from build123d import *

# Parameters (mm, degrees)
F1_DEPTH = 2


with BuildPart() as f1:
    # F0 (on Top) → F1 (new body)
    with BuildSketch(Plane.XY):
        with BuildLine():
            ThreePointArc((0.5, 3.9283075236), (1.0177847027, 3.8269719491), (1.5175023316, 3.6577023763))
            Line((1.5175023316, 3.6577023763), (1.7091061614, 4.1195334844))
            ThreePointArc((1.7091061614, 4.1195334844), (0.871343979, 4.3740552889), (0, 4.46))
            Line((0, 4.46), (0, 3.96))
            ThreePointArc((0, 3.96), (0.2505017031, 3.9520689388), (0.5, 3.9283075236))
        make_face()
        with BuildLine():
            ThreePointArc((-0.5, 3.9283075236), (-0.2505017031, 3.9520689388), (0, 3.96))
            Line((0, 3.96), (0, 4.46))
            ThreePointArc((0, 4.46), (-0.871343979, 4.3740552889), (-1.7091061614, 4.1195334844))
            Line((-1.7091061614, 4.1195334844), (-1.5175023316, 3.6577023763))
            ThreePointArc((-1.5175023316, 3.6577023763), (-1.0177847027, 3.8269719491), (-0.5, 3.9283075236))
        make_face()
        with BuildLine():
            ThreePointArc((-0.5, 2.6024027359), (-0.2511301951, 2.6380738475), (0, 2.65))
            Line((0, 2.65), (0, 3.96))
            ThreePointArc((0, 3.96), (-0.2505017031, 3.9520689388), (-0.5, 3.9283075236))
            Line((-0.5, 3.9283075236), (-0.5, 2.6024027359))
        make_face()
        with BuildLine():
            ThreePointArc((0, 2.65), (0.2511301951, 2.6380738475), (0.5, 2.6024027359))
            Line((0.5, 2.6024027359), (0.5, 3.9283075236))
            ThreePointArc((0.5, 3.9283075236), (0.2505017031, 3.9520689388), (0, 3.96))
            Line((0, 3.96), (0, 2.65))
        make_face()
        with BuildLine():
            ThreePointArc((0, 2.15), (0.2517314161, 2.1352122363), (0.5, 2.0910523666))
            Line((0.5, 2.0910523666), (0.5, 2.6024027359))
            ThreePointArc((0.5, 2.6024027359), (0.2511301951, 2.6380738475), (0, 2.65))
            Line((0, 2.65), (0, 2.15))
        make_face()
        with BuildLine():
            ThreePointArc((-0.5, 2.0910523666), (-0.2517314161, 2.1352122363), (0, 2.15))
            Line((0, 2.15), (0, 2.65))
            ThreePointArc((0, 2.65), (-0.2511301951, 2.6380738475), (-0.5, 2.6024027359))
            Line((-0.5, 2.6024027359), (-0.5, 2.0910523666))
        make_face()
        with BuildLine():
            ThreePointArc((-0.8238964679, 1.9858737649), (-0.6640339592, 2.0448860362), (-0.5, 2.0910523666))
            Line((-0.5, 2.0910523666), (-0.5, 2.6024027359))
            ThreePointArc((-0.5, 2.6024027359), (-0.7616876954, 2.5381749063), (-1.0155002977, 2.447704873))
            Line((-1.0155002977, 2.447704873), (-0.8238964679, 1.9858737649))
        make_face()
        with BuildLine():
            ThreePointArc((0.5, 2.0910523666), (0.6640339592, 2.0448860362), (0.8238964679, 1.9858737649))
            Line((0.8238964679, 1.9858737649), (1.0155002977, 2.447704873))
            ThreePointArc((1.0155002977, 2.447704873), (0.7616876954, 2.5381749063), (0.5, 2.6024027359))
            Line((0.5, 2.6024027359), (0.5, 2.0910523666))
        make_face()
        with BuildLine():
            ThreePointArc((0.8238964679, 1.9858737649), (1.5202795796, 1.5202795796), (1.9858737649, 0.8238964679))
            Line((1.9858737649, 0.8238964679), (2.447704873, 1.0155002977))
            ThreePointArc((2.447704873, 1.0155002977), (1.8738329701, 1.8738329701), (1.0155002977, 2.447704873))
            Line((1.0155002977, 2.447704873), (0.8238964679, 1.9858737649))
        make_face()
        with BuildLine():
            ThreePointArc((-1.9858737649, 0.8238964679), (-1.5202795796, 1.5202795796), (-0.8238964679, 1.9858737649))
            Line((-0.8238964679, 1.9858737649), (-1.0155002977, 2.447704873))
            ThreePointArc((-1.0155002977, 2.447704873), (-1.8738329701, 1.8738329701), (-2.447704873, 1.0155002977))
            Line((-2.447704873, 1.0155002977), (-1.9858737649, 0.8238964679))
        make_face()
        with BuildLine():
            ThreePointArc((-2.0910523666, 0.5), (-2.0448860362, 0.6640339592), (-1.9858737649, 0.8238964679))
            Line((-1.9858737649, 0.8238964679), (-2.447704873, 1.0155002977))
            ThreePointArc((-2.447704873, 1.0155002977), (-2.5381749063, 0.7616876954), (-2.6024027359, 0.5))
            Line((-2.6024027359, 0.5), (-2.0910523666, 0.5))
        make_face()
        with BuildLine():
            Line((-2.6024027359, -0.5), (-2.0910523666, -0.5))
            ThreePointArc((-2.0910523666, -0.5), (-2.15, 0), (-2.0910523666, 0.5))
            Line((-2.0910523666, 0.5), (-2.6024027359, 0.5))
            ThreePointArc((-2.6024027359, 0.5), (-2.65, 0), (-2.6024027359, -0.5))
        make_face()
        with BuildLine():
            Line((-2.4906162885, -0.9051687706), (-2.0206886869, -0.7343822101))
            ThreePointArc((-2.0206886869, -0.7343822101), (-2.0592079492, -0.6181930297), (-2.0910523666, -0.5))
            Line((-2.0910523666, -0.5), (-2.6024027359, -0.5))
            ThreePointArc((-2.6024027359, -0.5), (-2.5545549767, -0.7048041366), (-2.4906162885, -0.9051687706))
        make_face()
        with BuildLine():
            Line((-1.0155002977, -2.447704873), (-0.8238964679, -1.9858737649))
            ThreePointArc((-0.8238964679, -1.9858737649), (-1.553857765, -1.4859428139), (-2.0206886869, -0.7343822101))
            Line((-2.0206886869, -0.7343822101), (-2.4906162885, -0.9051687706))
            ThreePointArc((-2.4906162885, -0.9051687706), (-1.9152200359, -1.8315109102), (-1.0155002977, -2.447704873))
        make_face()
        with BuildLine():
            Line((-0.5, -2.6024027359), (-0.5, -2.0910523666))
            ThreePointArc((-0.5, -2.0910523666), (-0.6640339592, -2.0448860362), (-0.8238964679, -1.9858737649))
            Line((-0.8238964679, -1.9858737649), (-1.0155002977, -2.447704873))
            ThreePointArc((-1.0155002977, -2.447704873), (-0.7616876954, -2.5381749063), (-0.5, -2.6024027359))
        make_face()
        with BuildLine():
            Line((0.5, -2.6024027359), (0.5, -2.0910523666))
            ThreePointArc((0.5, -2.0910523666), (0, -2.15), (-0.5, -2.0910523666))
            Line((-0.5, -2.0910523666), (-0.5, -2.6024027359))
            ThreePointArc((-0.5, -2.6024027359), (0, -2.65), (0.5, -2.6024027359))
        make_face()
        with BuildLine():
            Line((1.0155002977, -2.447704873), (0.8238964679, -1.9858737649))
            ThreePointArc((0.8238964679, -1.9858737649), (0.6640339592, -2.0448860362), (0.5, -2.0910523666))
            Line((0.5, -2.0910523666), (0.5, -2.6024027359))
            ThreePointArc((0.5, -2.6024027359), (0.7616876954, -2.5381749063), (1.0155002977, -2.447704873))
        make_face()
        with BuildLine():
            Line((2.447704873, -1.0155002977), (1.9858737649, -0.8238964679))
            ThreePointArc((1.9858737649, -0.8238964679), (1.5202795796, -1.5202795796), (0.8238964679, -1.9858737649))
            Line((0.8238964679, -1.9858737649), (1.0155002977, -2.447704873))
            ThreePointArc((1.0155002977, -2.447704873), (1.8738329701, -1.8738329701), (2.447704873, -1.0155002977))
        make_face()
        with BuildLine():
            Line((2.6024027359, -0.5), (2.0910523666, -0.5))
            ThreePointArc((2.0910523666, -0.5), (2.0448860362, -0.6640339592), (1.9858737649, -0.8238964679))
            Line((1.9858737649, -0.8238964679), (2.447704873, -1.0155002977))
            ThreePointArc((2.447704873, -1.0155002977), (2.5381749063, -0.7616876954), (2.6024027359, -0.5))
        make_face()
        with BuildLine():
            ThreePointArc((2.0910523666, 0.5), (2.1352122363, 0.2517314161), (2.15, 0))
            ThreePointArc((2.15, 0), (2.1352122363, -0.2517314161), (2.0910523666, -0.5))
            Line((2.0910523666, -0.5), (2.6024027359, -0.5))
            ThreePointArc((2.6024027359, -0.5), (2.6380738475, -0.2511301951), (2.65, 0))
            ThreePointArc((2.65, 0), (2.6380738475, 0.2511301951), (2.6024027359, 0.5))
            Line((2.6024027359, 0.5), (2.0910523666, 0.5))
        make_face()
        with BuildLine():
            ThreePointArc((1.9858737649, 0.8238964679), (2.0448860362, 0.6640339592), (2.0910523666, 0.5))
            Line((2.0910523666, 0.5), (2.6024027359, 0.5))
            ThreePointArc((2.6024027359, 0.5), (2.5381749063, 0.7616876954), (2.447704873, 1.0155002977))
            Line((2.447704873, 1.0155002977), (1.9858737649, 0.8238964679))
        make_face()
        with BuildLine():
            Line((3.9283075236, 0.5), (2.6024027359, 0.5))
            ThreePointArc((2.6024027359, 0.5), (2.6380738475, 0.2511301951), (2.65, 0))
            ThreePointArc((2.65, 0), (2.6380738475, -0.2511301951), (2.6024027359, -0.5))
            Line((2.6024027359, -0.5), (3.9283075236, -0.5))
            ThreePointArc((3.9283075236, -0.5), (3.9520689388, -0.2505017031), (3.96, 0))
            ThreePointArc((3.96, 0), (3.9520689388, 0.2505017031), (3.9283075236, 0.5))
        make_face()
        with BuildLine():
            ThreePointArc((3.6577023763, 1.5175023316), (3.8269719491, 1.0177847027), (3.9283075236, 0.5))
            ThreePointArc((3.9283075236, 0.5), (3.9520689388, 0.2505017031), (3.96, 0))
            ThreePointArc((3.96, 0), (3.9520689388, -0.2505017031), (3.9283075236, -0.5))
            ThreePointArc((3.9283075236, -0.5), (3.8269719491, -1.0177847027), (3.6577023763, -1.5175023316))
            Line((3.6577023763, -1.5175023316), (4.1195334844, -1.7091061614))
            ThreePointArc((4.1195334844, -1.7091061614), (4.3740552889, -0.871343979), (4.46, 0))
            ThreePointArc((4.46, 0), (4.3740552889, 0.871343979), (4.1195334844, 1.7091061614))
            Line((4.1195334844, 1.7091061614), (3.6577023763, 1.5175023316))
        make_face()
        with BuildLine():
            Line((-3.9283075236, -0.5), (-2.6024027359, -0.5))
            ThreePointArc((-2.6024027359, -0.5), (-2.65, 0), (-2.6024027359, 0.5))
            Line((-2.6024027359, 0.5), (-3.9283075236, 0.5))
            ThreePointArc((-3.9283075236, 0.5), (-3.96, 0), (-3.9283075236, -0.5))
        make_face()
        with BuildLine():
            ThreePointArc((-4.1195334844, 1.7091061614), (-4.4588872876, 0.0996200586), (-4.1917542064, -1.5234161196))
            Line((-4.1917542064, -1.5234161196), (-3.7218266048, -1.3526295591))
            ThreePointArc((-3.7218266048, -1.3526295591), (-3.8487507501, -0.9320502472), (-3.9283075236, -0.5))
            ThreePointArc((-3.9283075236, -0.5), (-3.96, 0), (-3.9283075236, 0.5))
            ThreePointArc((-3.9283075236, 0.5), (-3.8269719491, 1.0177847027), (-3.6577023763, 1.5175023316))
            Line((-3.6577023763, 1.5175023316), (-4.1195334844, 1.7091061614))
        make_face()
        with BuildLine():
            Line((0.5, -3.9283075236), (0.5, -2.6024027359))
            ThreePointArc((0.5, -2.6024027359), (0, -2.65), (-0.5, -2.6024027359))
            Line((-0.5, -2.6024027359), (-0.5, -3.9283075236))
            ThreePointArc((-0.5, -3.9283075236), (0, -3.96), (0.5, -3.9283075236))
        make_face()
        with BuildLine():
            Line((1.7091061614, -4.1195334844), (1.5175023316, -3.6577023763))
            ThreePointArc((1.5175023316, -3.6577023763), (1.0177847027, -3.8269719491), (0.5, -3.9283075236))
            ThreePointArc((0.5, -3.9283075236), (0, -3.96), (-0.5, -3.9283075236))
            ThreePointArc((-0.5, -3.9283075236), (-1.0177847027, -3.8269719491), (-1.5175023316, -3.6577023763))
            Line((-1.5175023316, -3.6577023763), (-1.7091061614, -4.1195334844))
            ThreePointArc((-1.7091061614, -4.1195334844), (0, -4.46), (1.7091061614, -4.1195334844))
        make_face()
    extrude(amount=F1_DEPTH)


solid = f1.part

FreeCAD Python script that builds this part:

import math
import FreeCAD as App
import Part
import Sketcher

V = App.Vector
Q = App.Units.Quantity

doc = App.newDocument("Part")
params = doc.addObject("Spreadsheet::Sheet", "Params")
for row, (alias, value) in enumerate([
    ("sketch1_radius", "3.96 mm"),
    ("sketch1_radius2", "4.46 mm"),
    ("sketch1_radius3", "2.65 mm"),
    ("sketch1_radius4", "2.15 mm"),
    ("pad1_length", "2 mm"),
], start=1):
    params.set(f"A{row}", alias)
    params.set(f"B{row}", "=" + value)
    params.setAlias(f"B{row}", alias)

body = doc.addObject("PartDesign::Body", "Body")

# Sketch on XY plane
sketch1 = body.newObject("Sketcher::SketchObject", "Sketch")
sketch1.AttachmentSupport = (doc.getObject("XY_Plane"), [""])
sketch1.MapMode = "FlatFace"
sketch1.addGeometry([
    Part.ArcOfCircle(Part.Circle(V(0, 0, 0), V(0, 0, 1), 3.96), math.radians(67.47), math.radians(82.75)),  # 0
    Part.LineSegment(V(1.52, 3.66, 0), V(1.71, 4.12, 0)),  # 1
    Part.ArcOfCircle(Part.Circle(V(0, 0, 0), V(0, 0, 1), 4.46), math.radians(67), math.radians(90)),  # 2
    Part.ArcOfCircle(Part.Circle(V(0, 0, 0), V(0, 0, 1), 4.46), math.radians(90), math.radians(113)),  # 3
    Part.LineSegment(V(-1.71, 4.12, 0), V(-1.52, 3.66, 0)),  # 4
    Part.ArcOfCircle(Part.Circle(V(0, 0, 0), V(0, 0, 1), 3.96), math.radians(97.25), math.radians(112.53)),  # 5
    Part.LineSegment(V(-0.5, 3.93, 0), V(-0.5, 2.6, 0)),  # 6
    Part.ArcOfCircle(Part.Circle(V(0, 0, 0), V(0, 0, 1), 2.65), math.radians(100.88), math.radians(112.53)),  # 7
    Part.ArcOfCircle(Part.Circle(V(0, 0, 0), V(0, 0, 1), 2.65), math.radians(113), math.radians(157)),  # 8
    Part.ArcOfCircle(Part.Circle(V(0, 0, 0), V(0, 0, 1), 2.65), math.radians(157.47), math.radians(169.12)),  # 9
    Part.LineSegment(V(-2.6, 0.5, 0), V(-3.93, 0.5, 0)),  # 10
    Part.ArcOfCircle(Part.Circle(V(0, 0, 0), V(0, 0, 1), 3.96), math.radians(157.47), math.radians(172.75)),  # 11
    Part.LineSegment(V(-3.66, 1.52, 0), V(-4.12, 1.71, 0)),  # 12
    Part.ArcOfCircle(Part.Circle(V(0, 0, 0), V(0, 0, 1), 4.46), math.radians(157), math.radians(200)),  # 13
    Part.LineSegment(V(-4.19, -1.52, 0), V(-3.72, -1.35, 0)),  # 14
    Part.ArcOfCircle(Part.Circle(V(0, 0, 0), V(0, 0, 1), 3.96), math.radians(-172.75), math.radians(-160.03)),  # 15
    Part.LineSegment(V(-3.93, -0.5, 0), V(-2.6, -0.5, 0)),  # 16
    Part.ArcOfCircle(Part.Circle(V(0, 0, 0), V(0, 0, 1), 2.65), math.radians(-169.12), math.radians(-160.03)),  # 17
    Part.ArcOfCircle(Part.Circle(V(0, 0, 0), V(0, 0, 1), 2.65), math.radians(-160), math.radians(-113)),  # 18
    Part.ArcOfCircle(Part.Circle(V(0, 0, 0), V(0, 0, 1), 2.65), math.radians(-112.53), math.radians(-100.88)),  # 19
    Part.LineSegment(V(-0.5, -2.6, 0), V(-0.5, -3.93, 0)),  # 20
    Part.ArcOfCircle(Part.Circle(V(0, 0, 0), V(0, 0, 1), 3.96), math.radians(-112.53), math.radians(-97.25)),  # 21
    Part.LineSegment(V(-1.52, -3.66, 0), V(-1.71, -4.12, 0)),  # 22
    Part.ArcOfCircle(Part.Circle(V(0, 0, 0), V(0, 0, 1), 4.46), math.radians(-113), math.radians(-67)),  # 23
    Part.LineSegment(V(1.71, -4.12, 0), V(1.52, -3.66, 0)),  # 24
    Part.ArcOfCircle(Part.Circle(V(0, 0, 0), V(0, 0, 1), 3.96), math.radians(-82.75), math.radians(-67.47)),  # 25
    Part.LineSegment(V(0.5, -3.93, 0), V(0.5, -2.6, 0)),  # 26
    Part.ArcOfCircle(Part.Circle(V(0, 0, 0), V(0, 0, 1), 2.65), math.radians(-79.12), math.radians(-67.47)),  # 27
    Part.ArcOfCircle(Part.Circle(V(0, 0, 0), V(0, 0, 1), 2.65), math.radians(-67), math.radians(-23)),  # 28
    Part.ArcOfCircle(Part.Circle(V(0, 0, 0), V(0, 0, 1), 2.65), math.radians(-22.53), math.radians(-10.88)),  # 29
    Part.LineSegment(V(2.6, -0.5, 0), V(3.93, -0.5, 0)),  # 30
    Part.ArcOfCircle(Part.Circle(V(0, 0, 0), V(0, 0, 1), 3.96), math.radians(-22.53), math.radians(-7.25)),  # 31
    Part.LineSegment(V(3.66, -1.52, 0), V(4.12, -1.71, 0)),  # 32
    Part.ArcOfCircle(Part.Circle(V(0, 0, 0), V(0, 0, 1), 4.46), math.radians(-23), math.radians(0)),  # 33
    Part.ArcOfCircle(Part.Circle(V(0, 0, 0), V(0, 0, 1), 4.46), math.radians(0), math.radians(23)),  # 34
    Part.LineSegment(V(4.12, 1.71, 0), V(3.66, 1.52, 0)),  # 35
    Part.ArcOfCircle(Part.Circle(V(0, 0, 0), V(0, 0, 1), 3.96), math.radians(7.25), math.radians(22.53)),  # 36
    Part.LineSegment(V(3.93, 0.5, 0), V(2.6, 0.5, 0)),  # 37
    Part.ArcOfCircle(Part.Circle(V(0, 0, 0), V(0, 0, 1), 2.65), math.radians(10.88), math.radians(22.53)),  # 38
    Part.ArcOfCircle(Part.Circle(V(0, 0, 0), V(0, 0, 1), 2.65), math.radians(23), math.radians(67)),  # 39
    Part.ArcOfCircle(Part.Circle(V(0, 0, 0), V(0, 0, 1), 2.65), math.radians(67.47), math.radians(79.12)),  # 40
    Part.LineSegment(V(0.5, 2.6, 0), V(0.5, 3.93, 0)),  # 41
    Part.ArcOfCircle(Part.Circle(V(0, 0, 0), V(0, 0, 1), 2.15), math.radians(0), math.radians(13.45)),  # 42
    Part.ArcOfCircle(Part.Circle(V(0, 0, 0), V(0, 0, 1), 2.15), math.radians(-13.45), math.radians(0)),  # 43
    Part.ArcOfCircle(Part.Circle(V(0, 0, 0), V(0, 0, 1), 2.15), math.radians(-22.53), math.radians(-13.45)),  # 44
    Part.ArcOfCircle(Part.Circle(V(0, 0, 0), V(0, 0, 1), 2.15), math.radians(-67), math.radians(-23)),  # 45
    Part.ArcOfCircle(Part.Circle(V(0, 0, 0), V(0, 0, 1), 2.15), math.radians(-76.55), math.radians(-67.47)),  # 46
    Part.ArcOfCircle(Part.Circle(V(0, 0, 0), V(0, 0, 1), 2.15), math.radians(-103), math.radians(-77)),  # 47
    Part.ArcOfCircle(Part.Circle(V(0, 0, 0), V(0, 0, 1), 2.15), math.radians(-112.53), math.radians(-103.45)),  # 48
    Part.ArcOfCircle(Part.Circle(V(0, 0, 0), V(0, 0, 1), 2.15), math.radians(-160), math.radians(-113)),  # 49
    Part.ArcOfCircle(Part.Circle(V(0, 0, 0), V(0, 0, 1), 2.15), math.radians(-166.55), math.radians(-160.03)),  # 50
    Part.ArcOfCircle(Part.Circle(V(0, 0, 0), V(0, 0, 1), 2.15), math.radians(167), math.radians(193)),  # 51
    Part.ArcOfCircle(Part.Circle(V(0, 0, 0), V(0, 0, 1), 2.15), math.radians(157.47), math.radians(166.55)),  # 52
    Part.ArcOfCircle(Part.Circle(V(0, 0, 0), V(0, 0, 1), 2.15), math.radians(113), math.radians(157)),  # 53
    Part.ArcOfCircle(Part.Circle(V(0, 0, 0), V(0, 0, 1), 2.15), math.radians(103.45), math.radians(112.53)),  # 54
    Part.ArcOfCircle(Part.Circle(V(0, 0, 0), V(0, 0, 1), 2.15), math.radians(90), math.radians(103.45)),  # 55
    Part.ArcOfCircle(Part.Circle(V(0, 0, 0), V(0, 0, 1), 2.15), math.radians(76.55), math.radians(90)),  # 56
    Part.ArcOfCircle(Part.Circle(V(0, 0, 0), V(0, 0, 1), 2.15), math.radians(67.47), math.radians(76.55)),  # 57
    Part.ArcOfCircle(Part.Circle(V(0, 0, 0), V(0, 0, 1), 2.15), math.radians(23), math.radians(67)),  # 58
    Part.ArcOfCircle(Part.Circle(V(0, 0, 0), V(0, 0, 1), 2.15), math.radians(13.45), math.radians(22.53)),  # 59
], False)
sketch1.addConstraint([
    Sketcher.Constraint("Coincident", 0, 1, 1, 1),
    Sketcher.Constraint("Coincident", 1, 2, 2, 1),
    Sketcher.Constraint("Tangent", 2, 2, 3, 1),
    Sketcher.Constraint("Coincident", 3, 2, 4, 1),
    Sketcher.Constraint("Coincident", 4, 2, 5, 2),
    Sketcher.Constraint("Coincident", 5, 1, 6, 1),
    Sketcher.Constraint("Coincident", 6, 2, 7, 1),
    Sketcher.Constraint("Tangent", 7, 2, 8, 1),
    Sketcher.Constraint("Tangent", 8, 2, 9, 1),
    Sketcher.Constraint("Coincident", 9, 2, 10, 1),
    Sketcher.Constraint("Coincident", 10, 2, 11, 2),
    Sketcher.Constraint("Coincident", 11, 1, 12, 1),
    Sketcher.Constraint("Coincident", 12, 2, 13, 1),
    Sketcher.Constraint("Coincident", 13, 2, 14, 1),
    Sketcher.Constraint("Coincident", 14, 2, 15, 2),
    Sketcher.Constraint("Coincident", 15, 1, 16, 1),
    Sketcher.Constraint("Coincident", 16, 2, 17, 1),
    Sketcher.Constraint("Tangent", 17, 2, 18, 1),
    Sketcher.Constraint("Tangent", 18, 2, 19, 1),
    Sketcher.Constraint("Coincident", 19, 2, 20, 1),
    Sketcher.Constraint("Coincident", 20, 2, 21, 2),
    Sketcher.Constraint("Coincident", 21, 1, 22, 1),
    Sketcher.Constraint("Coincident", 22, 2, 23, 1),
    Sketcher.Constraint("Coincident", 23, 2, 24, 1),
    Sketcher.Constraint("Coincident", 24, 2, 25, 2),
    Sketcher.Constraint("Coincident", 25, 1, 26, 1),
    Sketcher.Constraint("Coincident", 26, 2, 27, 1),
    Sketcher.Constraint("Tangent", 27, 2, 28, 1),
    Sketcher.Constraint("Tangent", 28, 2, 29, 1),
    Sketcher.Constraint("Coincident", 29, 2, 30, 1),
    Sketcher.Constraint("Coincident", 30, 2, 31, 2),
    Sketcher.Constraint("Coincident", 31, 1, 32, 1),
    Sketcher.Constraint("Coincident", 32, 2, 33, 1),
    Sketcher.Constraint("Tangent", 33, 2, 34, 1),
    Sketcher.Constraint("Coincident", 34, 2, 35, 1),
    Sketcher.Constraint("Coincident", 35, 2, 36, 2),
    Sketcher.Constraint("Coincident", 36, 1, 37, 1),
    Sketcher.Constraint("Coincident", 37, 2, 38, 1),
    Sketcher.Constraint("Tangent", 38, 2, 39, 1),
    Sketcher.Constraint("Tangent", 39, 2, 40, 1),
    Sketcher.Constraint("Coincident", 40, 2, 41, 1),
    Sketcher.Constraint("Coincident", 41, 2, 0, 2),
    Sketcher.Constraint("Tangent", 42, 1, 43, 2),
    Sketcher.Constraint("Tangent", 43, 1, 44, 2),
    Sketcher.Constraint("Tangent", 44, 1, 45, 2),
    Sketcher.Constraint("Tangent", 45, 1, 46, 2),
    Sketcher.Constraint("Tangent", 46, 1, 47, 2),
    Sketcher.Constraint("Tangent", 47, 1, 48, 2),
    Sketcher.Constraint("Tangent", 48, 1, 49, 2),
    Sketcher.Constraint("Tangent", 49, 1, 50, 2),
    Sketcher.Constraint("Tangent", 50, 1, 51, 2),
    Sketcher.Constraint("Tangent", 51, 1, 52, 2),
    Sketcher.Constraint("Tangent", 52, 1, 53, 2),
    Sketcher.Constraint("Tangent", 53, 1, 54, 2),
    Sketcher.Constraint("Tangent", 54, 1, 55, 2),
    Sketcher.Constraint("Tangent", 55, 1, 56, 2),
    Sketcher.Constraint("Tangent", 56, 1, 57, 2),
    Sketcher.Constraint("Tangent", 57, 1, 58, 2),
    Sketcher.Constraint("Tangent", 58, 1, 59, 2),
    Sketcher.Constraint("Tangent", 59, 1, 42, 2),
    Sketcher.Constraint("Vertical", 6),
    Sketcher.Constraint("Horizontal", 10),
    Sketcher.Constraint("Horizontal", 16),
    Sketcher.Constraint("Vertical", 20),
    Sketcher.Constraint("Vertical", 26),
    Sketcher.Constraint("Horizontal", 30),
    Sketcher.Constraint("Horizontal", 37),
    Sketcher.Constraint("Vertical", 41),
    Sketcher.Constraint("Coincident", 0, 3, -1, 1),
    Sketcher.Constraint("Coincident", 2, 3, -1, 1),
    Sketcher.Constraint("Coincident", 5, 3, -1, 1),
    Sketcher.Constraint("Coincident", 7, 3, -1, 1),
    Sketcher.Constraint("Coincident", 9, 3, -1, 1),
    Sketcher.Constraint("Coincident", 11, 3, -1, 1),
    Sketcher.Constraint("Coincident", 13, 3, -1, 1),
    Sketcher.Constraint("Coincident", 15, 3, -1, 1),
    Sketcher.Constraint("Coincident", 17, 3, -1, 1),
    Sketcher.Constraint("Coincident", 19, 3, -1, 1),
    Sketcher.Constraint("Coincident", 21, 3, -1, 1),
    Sketcher.Constraint("Coincident", 23, 3, -1, 1),
    Sketcher.Constraint("Coincident", 25, 3, -1, 1),
    Sketcher.Constraint("Coincident", 27, 3, -1, 1),
    Sketcher.Constraint("Coincident", 29, 3, -1, 1),
    Sketcher.Constraint("Coincident", 31, 3, -1, 1),
    Sketcher.Constraint("Coincident", 33, 3, -1, 1),
    Sketcher.Constraint("Coincident", 36, 3, -1, 1),
    Sketcher.Constraint("Coincident", 38, 3, -1, 1),
    Sketcher.Constraint("Coincident", 40, 3, -1, 1),
    Sketcher.Constraint("Coincident", 42, 3, -1, 1),
    Sketcher.Constraint("Coincident", 44, 3, -1, 1),
    Sketcher.Constraint("Coincident", 46, 3, -1, 1),
    Sketcher.Constraint("Coincident", 48, 3, -1, 1),
    Sketcher.Constraint("Coincident", 50, 3, -1, 1),
    Sketcher.Constraint("Coincident", 52, 3, -1, 1),
    Sketcher.Constraint("Coincident", 54, 3, -1, 1),
    Sketcher.Constraint("Coincident", 56, 3, -1, 1),
    Sketcher.Constraint("Equal", 2, 3),
    Sketcher.Constraint("Equal", 0, 5),
    Sketcher.Constraint("Equal", 5, 11),
    Sketcher.Constraint("Equal", 3, 13),
    Sketcher.Constraint("Equal", 11, 15),
    Sketcher.Constraint("Equal", 9, 17),
    Sketcher.Constraint("Equal", 15, 21),
    Sketcher.Constraint("Equal", 13, 23),
    Sketcher.Constraint("Equal", 21, 25),
    Sketcher.Constraint("Equal", 19, 27),
    Sketcher.Constraint("Equal", 25, 31),
    Sketcher.Constraint("Equal", 23, 33),
    Sketcher.Constraint("Equal", 33, 34),
    Sketcher.Constraint("Equal", 31, 36),
    Sketcher.Constraint("Equal", 29, 38),
    Sketcher.Constraint("Equal", 56, 57),
    Sketcher.Constraint("PointOnObject", 2, 2, -2),
    Sketcher.Constraint("PointOnObject", 33, 2, -1),
    Sketcher.Constraint("PointOnObject", 42, 1, -1),
    Sketcher.Constraint("PointOnObject", 55, 1, -2),
    Sketcher.Constraint("Perpendicular", 1, 12),
    Sketcher.Constraint("Perpendicular", 12, 22),
    Sketcher.Constraint("Parallel", 4, 24),
    Sketcher.Constraint("Perpendicular", 22, 32),
    Sketcher.Constraint("Perpendicular", 24, 35),
    Sketcher.Constraint("Horizontal", 1, 2, 3, 2),
    Sketcher.Constraint("Horizontal", 0, 1, 4, 2),
    Sketcher.Constraint("Horizontal", 22, 2, 23, 2),
    Sketcher.Constraint("Horizontal", 20, 2, 25, 1),
    Sketcher.Constraint("Horizontal", 18, 2, 27, 2),
    Sketcher.Constraint("Horizontal", 16, 2, 29, 2),
    Sketcher.Constraint("Horizontal", 12, 2, 34, 2),
    Sketcher.Constraint("Horizontal", 10, 2, 36, 1),
    Sketcher.Constraint("Horizontal", 8, 2, 38, 2),
    Sketcher.Constraint("Horizontal", 7, 2, 39, 2),
    Sketcher.Constraint("Horizontal", 6, 2, 40, 2),
    Sketcher.Constraint("Horizontal", 30, 2, 43, 1),
    Sketcher.Constraint("Horizontal", 46, 1, 47, 1),
    Sketcher.Constraint("Horizontal", 45, 1, 48, 1),
    Sketcher.Constraint("Horizontal", 43, 1, 50, 1),
    Sketcher.Constraint("Horizontal", 37, 2, 51, 1),
    Sketcher.Constraint("Horizontal", 54, 1, 56, 1),
    Sketcher.Constraint("Horizontal", 53, 1, 57, 1),
    Sketcher.Constraint("Horizontal", 52, 1, 58, 1),
    Sketcher.Constraint("Horizontal", 51, 1, 59, 1),
    Sketcher.Constraint("Vertical", 10, 2, 15, 1),
    Sketcher.Constraint("Vertical", 7, 2, 18, 2),
    Sketcher.Constraint("Vertical", 6, 2, 19, 2),
    Sketcher.Constraint("Vertical", 4, 2, 21, 1),
    Sketcher.Constraint("Vertical", 32, 2, 34, 2),
    Sketcher.Constraint("Vertical", 28, 2, 38, 2),
    Sketcher.Constraint("Vertical", 41, 2, 46, 1),
    Sketcher.Constraint("Vertical", 48, 1, 53, 1),
    Sketcher.Constraint("Vertical", 47, 1, 54, 1),
    Sketcher.Constraint("Vertical", 44, 1, 58, 1),
    Sketcher.Constraint("Equal", 37, 6),
    Sketcher.Constraint("Radius", 0, Q("3.96 mm")),
    Sketcher.Constraint("Radius", 2, Q("4.46 mm")),
    Sketcher.Constraint("Radius", 7, Q("2.65 mm")),
    Sketcher.Constraint("Radius", 42, Q("2.15 mm")),
    Sketcher.Constraint("DistanceX", 5, 1, -1, 1, Q("0.5 mm")),
    Sketcher.Constraint("DistanceX", 7, 2, -1, 1, Q("1.0155 mm")),
    Sketcher.Constraint("DistanceY", -1, 1, 8, 2, Q("1.0155 mm")),
    Sketcher.Constraint("DistanceY", 14, 2, -1, 1, Q("1.35263 mm")),
    Sketcher.Constraint("DistanceY", 17, 2, -1, 1, Q("0.905169 mm")),
    Sketcher.Constraint("DistanceX", 49, 1, -1, 1, Q("2.020689 mm")),
    Sketcher.Constraint("DistanceX", -1, 1, 0, 1, Q("1.517502 mm")),
    Sketcher.Constraint("DistanceX", -1, 1, 1, 2, Q("1.709106 mm")),
    Sketcher.Constraint("DistanceX", 11, 1, -1, 1, Q("3.657702 mm")),
    Sketcher.Constraint("DistanceX", 13, 2, -1, 1, Q("4.191754 mm")),
    Sketcher.Constraint("DistanceX", -1, 1, 44, 1, Q("1.985874 mm")),
    Sketcher.Constraint("DistanceX", -1, 1, 45, 1, Q("0.823896 mm")),
])
sketch1.setExpression("Constraints[152]", "Params.sketch1_radius")
sketch1.setExpression("Constraints[153]", "Params.sketch1_radius2")
sketch1.setExpression("Constraints[154]", "Params.sketch1_radius3")
sketch1.setExpression("Constraints[155]", "Params.sketch1_radius4")
pad1 = body.newObject("PartDesign::Pad", "Pad")
pad1.Profile = sketch1
pad1.setExpression("Length", "Params.pad1_length")

doc.recompute()
